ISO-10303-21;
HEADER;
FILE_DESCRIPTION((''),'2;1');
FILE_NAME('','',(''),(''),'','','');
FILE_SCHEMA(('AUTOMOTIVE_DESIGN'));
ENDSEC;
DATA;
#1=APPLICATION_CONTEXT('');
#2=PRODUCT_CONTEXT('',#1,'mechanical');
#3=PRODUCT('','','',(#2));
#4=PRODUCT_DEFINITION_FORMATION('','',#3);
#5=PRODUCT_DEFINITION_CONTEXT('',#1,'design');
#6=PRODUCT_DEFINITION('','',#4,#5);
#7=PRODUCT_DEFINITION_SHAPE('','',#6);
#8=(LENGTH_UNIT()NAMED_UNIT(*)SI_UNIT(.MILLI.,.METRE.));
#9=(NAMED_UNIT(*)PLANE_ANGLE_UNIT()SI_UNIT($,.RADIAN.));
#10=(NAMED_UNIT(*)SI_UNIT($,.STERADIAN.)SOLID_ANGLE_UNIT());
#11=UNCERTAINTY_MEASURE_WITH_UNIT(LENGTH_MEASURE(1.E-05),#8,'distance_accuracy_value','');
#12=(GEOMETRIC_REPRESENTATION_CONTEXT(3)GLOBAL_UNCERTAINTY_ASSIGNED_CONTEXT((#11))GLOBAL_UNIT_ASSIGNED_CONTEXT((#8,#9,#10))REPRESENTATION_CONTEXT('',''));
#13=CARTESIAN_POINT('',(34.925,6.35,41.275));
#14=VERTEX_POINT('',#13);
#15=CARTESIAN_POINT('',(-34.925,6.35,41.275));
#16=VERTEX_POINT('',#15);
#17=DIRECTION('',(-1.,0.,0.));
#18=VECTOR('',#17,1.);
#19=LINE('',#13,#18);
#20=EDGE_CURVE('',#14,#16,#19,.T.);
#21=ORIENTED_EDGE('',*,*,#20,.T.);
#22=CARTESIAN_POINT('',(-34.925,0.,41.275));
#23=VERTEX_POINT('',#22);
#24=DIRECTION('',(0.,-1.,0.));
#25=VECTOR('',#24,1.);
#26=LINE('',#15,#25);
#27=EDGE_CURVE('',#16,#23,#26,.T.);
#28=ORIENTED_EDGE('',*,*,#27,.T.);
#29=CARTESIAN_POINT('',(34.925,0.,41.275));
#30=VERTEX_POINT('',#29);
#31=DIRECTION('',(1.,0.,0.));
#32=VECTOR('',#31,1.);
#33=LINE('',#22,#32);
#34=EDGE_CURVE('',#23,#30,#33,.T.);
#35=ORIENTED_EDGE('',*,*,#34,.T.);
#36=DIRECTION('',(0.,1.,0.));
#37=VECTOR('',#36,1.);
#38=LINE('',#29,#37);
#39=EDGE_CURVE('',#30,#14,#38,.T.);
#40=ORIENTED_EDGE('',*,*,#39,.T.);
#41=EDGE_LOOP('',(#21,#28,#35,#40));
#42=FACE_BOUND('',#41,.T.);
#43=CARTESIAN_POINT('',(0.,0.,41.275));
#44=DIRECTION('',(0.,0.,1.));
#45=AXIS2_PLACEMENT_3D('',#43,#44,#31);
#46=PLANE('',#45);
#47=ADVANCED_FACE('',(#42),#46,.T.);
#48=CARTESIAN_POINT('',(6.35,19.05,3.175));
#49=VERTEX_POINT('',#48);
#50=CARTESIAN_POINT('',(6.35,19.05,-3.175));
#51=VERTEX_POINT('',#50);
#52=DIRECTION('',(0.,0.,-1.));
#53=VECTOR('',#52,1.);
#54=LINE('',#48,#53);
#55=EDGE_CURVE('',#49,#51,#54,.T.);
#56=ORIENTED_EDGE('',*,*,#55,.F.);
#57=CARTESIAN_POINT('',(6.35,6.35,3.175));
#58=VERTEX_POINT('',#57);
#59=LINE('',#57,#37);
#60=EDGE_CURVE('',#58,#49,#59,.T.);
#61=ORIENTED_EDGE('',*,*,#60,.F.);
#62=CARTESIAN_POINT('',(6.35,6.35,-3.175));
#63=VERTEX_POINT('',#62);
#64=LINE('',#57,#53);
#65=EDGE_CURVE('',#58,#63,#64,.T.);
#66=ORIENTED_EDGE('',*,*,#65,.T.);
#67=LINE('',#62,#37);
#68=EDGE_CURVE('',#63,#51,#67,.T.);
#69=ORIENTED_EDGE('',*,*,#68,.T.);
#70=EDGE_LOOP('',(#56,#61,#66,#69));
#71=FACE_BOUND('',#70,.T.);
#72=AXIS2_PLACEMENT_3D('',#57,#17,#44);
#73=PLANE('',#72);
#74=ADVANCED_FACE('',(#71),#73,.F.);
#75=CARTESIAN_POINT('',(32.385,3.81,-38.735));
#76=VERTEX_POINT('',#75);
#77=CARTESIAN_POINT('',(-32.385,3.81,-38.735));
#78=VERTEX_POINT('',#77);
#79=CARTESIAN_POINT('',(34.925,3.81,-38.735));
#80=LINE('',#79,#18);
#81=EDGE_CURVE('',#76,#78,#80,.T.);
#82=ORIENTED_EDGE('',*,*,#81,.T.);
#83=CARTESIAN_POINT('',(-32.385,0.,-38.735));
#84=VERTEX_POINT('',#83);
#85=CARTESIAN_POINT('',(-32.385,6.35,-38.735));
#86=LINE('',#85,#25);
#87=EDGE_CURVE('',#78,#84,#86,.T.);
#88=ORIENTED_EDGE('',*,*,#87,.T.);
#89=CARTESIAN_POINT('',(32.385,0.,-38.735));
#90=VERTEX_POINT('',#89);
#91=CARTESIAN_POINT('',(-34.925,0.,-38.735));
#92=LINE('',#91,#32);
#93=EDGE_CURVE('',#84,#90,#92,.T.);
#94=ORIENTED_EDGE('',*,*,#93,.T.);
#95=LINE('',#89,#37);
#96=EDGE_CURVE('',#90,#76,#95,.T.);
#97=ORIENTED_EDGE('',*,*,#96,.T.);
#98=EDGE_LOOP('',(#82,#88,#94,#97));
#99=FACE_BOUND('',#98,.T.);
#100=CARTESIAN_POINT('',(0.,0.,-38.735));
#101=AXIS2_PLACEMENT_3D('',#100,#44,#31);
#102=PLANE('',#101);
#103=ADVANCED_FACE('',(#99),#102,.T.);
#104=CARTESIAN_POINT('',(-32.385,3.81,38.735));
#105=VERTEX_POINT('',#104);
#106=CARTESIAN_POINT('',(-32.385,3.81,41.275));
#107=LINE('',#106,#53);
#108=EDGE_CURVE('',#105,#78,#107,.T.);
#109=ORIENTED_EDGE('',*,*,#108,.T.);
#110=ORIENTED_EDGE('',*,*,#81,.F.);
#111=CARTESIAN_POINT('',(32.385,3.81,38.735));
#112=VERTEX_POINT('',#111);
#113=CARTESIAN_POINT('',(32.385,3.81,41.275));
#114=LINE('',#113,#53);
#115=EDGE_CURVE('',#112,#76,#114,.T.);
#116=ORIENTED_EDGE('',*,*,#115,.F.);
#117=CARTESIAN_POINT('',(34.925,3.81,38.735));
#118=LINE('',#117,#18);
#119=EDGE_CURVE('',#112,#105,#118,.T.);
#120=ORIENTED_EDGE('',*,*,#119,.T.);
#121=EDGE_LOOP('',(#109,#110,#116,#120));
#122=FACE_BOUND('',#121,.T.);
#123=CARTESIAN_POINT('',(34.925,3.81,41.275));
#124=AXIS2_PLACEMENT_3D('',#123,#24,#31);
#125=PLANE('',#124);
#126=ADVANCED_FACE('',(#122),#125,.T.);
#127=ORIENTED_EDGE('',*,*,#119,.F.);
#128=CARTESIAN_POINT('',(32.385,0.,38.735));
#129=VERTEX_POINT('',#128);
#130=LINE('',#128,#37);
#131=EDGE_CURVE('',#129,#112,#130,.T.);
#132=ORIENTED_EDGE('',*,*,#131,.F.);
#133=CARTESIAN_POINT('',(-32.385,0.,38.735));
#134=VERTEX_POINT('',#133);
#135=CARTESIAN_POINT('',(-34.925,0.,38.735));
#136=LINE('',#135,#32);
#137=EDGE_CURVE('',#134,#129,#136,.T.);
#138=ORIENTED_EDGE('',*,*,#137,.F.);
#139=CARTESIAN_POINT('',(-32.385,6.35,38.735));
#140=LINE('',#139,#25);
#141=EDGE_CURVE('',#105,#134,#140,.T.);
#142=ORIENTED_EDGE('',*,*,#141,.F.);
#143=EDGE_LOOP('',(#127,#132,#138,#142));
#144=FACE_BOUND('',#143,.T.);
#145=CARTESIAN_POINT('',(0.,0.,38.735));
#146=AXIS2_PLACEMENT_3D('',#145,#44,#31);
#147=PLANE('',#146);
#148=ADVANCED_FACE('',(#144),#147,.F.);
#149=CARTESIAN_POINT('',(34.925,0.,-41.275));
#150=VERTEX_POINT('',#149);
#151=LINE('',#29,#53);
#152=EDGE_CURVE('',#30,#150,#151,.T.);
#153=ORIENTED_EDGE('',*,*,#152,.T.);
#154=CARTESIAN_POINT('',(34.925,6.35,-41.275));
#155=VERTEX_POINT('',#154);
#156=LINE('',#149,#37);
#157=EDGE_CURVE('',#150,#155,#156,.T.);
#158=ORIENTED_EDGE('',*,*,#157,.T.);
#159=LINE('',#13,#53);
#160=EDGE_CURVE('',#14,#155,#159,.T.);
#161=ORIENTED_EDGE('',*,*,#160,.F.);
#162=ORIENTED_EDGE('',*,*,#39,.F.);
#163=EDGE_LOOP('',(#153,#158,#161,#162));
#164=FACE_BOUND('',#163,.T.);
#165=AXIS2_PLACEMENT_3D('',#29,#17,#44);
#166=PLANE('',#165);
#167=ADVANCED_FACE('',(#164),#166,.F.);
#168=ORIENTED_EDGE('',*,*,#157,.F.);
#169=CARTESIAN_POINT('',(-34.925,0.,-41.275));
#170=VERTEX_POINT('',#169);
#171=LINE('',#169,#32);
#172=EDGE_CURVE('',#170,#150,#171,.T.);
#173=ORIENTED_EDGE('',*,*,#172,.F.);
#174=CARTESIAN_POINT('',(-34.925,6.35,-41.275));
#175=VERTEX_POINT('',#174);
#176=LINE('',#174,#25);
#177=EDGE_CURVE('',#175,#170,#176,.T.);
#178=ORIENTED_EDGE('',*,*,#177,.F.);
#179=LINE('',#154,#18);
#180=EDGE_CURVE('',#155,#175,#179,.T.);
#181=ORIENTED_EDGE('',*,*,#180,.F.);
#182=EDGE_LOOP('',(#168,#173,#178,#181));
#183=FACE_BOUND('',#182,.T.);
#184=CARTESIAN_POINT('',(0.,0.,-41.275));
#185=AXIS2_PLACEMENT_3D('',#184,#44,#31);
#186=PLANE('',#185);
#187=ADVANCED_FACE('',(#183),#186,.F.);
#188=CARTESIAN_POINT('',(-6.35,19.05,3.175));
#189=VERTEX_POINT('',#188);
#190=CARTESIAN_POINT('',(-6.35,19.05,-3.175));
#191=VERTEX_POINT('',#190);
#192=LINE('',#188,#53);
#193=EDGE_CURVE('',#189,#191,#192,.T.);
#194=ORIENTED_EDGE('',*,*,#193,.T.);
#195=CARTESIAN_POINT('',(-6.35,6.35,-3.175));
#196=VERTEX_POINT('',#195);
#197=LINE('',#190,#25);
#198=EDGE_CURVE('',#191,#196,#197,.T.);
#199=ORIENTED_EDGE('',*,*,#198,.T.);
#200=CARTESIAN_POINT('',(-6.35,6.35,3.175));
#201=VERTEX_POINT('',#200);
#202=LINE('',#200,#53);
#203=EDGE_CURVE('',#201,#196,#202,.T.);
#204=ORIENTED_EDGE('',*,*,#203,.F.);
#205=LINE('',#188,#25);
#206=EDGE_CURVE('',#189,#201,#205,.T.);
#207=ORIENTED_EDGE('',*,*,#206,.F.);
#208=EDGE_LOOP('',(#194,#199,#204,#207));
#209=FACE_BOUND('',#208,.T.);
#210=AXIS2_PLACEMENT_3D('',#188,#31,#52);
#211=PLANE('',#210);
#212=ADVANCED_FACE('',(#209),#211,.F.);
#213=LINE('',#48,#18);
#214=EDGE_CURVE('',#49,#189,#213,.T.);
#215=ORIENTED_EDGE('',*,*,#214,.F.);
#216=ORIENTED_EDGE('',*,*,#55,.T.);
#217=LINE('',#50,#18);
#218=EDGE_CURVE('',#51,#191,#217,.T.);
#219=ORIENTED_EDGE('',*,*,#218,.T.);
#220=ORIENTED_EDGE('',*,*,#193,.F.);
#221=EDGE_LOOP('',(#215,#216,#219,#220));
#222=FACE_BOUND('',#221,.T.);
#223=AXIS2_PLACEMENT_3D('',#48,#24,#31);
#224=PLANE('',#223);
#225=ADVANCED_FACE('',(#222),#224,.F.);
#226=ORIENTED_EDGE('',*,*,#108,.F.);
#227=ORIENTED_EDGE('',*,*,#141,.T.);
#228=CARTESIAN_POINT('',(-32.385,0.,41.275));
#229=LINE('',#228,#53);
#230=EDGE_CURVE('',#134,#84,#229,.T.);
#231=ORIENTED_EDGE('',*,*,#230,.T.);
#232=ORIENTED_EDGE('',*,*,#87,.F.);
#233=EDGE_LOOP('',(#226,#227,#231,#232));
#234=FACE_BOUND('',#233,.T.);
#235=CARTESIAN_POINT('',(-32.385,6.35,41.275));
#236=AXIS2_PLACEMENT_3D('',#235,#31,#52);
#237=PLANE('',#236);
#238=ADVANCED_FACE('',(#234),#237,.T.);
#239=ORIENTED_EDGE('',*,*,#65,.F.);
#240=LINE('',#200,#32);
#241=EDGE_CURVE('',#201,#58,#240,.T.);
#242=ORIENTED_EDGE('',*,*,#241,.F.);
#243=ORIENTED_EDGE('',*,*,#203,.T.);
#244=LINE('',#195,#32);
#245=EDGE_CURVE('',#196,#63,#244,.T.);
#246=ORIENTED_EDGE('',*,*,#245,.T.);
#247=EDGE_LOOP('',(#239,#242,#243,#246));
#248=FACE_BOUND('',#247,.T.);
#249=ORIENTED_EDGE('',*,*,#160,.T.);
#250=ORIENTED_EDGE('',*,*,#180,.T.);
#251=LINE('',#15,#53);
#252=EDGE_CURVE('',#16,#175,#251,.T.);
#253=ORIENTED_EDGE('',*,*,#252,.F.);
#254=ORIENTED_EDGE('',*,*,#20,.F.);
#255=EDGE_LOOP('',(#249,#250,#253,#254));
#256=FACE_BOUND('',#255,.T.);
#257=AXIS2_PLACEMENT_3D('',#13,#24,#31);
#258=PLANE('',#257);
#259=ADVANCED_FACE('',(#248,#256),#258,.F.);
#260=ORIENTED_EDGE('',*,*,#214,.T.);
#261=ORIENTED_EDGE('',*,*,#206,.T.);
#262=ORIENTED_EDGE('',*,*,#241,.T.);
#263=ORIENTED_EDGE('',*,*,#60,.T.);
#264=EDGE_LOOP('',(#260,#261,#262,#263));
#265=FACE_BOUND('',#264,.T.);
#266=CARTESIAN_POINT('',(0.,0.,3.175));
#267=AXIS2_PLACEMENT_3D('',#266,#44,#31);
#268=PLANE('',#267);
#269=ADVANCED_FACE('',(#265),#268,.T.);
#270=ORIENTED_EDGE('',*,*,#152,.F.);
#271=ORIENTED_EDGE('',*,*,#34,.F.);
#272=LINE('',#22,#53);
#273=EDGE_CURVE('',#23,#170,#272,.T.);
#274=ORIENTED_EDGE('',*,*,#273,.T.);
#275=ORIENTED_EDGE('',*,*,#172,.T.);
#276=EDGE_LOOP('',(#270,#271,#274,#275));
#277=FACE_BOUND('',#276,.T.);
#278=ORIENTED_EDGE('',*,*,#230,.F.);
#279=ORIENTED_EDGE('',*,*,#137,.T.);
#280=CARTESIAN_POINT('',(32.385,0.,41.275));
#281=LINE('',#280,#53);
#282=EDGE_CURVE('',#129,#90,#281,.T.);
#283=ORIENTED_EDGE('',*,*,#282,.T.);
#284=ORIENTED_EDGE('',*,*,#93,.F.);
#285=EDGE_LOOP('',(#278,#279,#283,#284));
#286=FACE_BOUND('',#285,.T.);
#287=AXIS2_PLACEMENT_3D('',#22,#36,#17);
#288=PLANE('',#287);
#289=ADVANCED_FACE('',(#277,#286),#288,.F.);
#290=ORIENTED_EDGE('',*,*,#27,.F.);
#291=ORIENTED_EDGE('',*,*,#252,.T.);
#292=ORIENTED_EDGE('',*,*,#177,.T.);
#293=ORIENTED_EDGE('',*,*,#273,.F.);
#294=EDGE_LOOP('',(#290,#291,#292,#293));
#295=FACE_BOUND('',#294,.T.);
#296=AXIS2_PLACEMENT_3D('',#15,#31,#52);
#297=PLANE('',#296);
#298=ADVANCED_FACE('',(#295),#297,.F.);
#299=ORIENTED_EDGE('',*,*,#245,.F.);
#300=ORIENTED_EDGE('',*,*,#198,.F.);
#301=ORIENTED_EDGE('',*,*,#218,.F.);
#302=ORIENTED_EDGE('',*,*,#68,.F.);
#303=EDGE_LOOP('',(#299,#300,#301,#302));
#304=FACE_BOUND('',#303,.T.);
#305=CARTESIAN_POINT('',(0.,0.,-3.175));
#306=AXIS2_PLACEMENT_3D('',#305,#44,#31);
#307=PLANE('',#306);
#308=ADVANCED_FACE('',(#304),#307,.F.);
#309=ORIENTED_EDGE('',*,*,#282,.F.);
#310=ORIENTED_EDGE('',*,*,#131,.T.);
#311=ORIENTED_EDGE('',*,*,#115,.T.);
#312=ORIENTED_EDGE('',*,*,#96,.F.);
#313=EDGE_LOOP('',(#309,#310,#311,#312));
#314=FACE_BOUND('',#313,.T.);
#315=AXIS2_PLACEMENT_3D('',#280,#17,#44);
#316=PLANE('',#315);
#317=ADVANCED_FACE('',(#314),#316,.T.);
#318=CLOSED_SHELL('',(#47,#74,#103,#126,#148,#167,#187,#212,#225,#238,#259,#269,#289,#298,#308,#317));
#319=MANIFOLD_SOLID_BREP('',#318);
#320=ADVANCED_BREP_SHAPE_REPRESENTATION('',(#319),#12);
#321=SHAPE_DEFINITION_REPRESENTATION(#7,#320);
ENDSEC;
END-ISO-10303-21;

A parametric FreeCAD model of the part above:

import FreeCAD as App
import Part
import Sketcher
Q = App.Units.Quantity


def faces_at(feature, points):
    """Names of the faces that lie closest to the given points."""
    faces = feature.Shape.Faces
    near = lambda p: min(range(len(faces)), key=lambda i: faces[i].distToShape(Part.Vertex(*p))[0])
    return sorted({f"Face{near(p) + 1}" for p in points})

doc = App.newDocument("Part")
body = doc.addObject("PartDesign::Body", "Body")

sketch1 = body.newObject("Sketcher::SketchObject", "Sketch")
sketch1.AttachmentSupport = (doc.getObject("XY_Plane"), [""])
sketch1.MapMode = "FlatFace"
sketch1.addGeometry(Part.LineSegment(App.Vector(-34.925, 6.35, 0), App.Vector(-34.925, 0, 0)), False)
sketch1.addGeometry(Part.LineSegment(App.Vector(-34.925, 0, 0), App.Vector(34.925, 0, 0)), False)
sketch1.addGeometry(Part.LineSegment(App.Vector(34.925, 0, 0), App.Vector(34.925, 6.35, 0)), False)
sketch1.addGeometry(Part.LineSegment(App.Vector(34.925, 6.35, 0), App.Vector(-34.925, 6.35, 0)), False)
sketch1.addConstraint(Sketcher.Constraint("Coincident", 0, 2, 1, 1))
sketch1.addConstraint(Sketcher.Constraint("Coincident", 1, 2, 2, 1))
sketch1.addConstraint(Sketcher.Constraint("Coincident", 2, 2, 3, 1))
sketch1.addConstraint(Sketcher.Constraint("Coincident", 3, 2, 0, 1))
sketch1.addConstraint(Sketcher.Constraint("Vertical", 0))
sketch1.addConstraint(Sketcher.Constraint("Horizontal", 1))
sketch1.addConstraint(Sketcher.Constraint("Vertical", 2))
sketch1.addConstraint(Sketcher.Constraint("Horizontal", 3))
sketch1.addConstraint(Sketcher.Constraint("Symmetric", 0, 2, 1, 2, -1, 1))
sketch1.addConstraint(Sketcher.Constraint("DistanceX", 1, 1, 1, 2, Q("2.75 in")))
sketch1.addConstraint(Sketcher.Constraint("DistanceY", 0, 2, 0, 1, Q("0.25 in")))
pad1 = body.newObject("PartDesign::Pad", "Pad")
pad1.Profile = sketch1
pad1.Length = Q("3.25 in")
pad1.Midplane = True
doc.recompute()

thickness = body.newObject("PartDesign::Thickness", "Thickness")
thickness.Base = (pad1, faces_at(pad1, [(0, 0, 0)]))
thickness.Value = Q("0.1 in")
thickness.Reversed = True
thickness.Join = "Intersection"

sketch2 = body.newObject("Sketcher::SketchObject", "Sketch001")
sketch2.AttachmentSupport = (doc.getObject("XY_Plane"), [""])
sketch2.MapMode = "FlatFace"
sketch2.addGeometry(Part.LineSegment(App.Vector(-6.35, 19.05, 0), App.Vector(-6.35, 6.35, 0)), False)
sketch2.addGeometry(Part.LineSegment(App.Vector(-6.35, 6.35, 0), App.Vector(6.35, 6.35, 0)), False)
sketch2.addGeometry(Part.LineSegment(App.Vector(6.35, 6.35, 0), App.Vector(6.35, 19.05, 0)), False)
sketch2.addGeometry(Part.LineSegment(App.Vector(6.35, 19.05, 0), App.Vector(-6.35, 19.05, 0)), False)
sketch2.addConstraint(Sketcher.Constraint("Coincident", 0, 2, 1, 1))
sketch2.addConstraint(Sketcher.Constraint("Coincident", 1, 2, 2, 1))
sketch2.addConstraint(Sketcher.Constraint("Coincident", 2, 2, 3, 1))
sketch2.addConstraint(Sketcher.Constraint("Coincident", 3, 2, 0, 1))
sketch2.addConstraint(Sketcher.Constraint("Vertical", 0))
sketch2.addConstraint(Sketcher.Constraint("Horizontal", 1))
sketch2.addConstraint(Sketcher.Constraint("Vertical", 2))
sketch2.addConstraint(Sketcher.Constraint("Horizontal", 3))
sketch2.addConstraint(Sketcher.Constraint("Equal", 3, 0))
sketch2.addConstraint(Sketcher.Constraint("DistanceX", 1, 1, 1, 2, Q("0.5 in")))
sketch2.addConstraint(Sketcher.Constraint("DistanceX", 0, 2, -1, 1, Q("0.25 in")))
sketch2.addConstraint(Sketcher.Constraint("DistanceY", -1, 1, 0, 2, Q("0.25 in")))
pad2 = body.newObject("PartDesign::Pad", "Pad001")
pad2.Profile = sketch2
pad2.Length = Q("0.25 in")
pad2.Midplane = True

doc.recompute()
